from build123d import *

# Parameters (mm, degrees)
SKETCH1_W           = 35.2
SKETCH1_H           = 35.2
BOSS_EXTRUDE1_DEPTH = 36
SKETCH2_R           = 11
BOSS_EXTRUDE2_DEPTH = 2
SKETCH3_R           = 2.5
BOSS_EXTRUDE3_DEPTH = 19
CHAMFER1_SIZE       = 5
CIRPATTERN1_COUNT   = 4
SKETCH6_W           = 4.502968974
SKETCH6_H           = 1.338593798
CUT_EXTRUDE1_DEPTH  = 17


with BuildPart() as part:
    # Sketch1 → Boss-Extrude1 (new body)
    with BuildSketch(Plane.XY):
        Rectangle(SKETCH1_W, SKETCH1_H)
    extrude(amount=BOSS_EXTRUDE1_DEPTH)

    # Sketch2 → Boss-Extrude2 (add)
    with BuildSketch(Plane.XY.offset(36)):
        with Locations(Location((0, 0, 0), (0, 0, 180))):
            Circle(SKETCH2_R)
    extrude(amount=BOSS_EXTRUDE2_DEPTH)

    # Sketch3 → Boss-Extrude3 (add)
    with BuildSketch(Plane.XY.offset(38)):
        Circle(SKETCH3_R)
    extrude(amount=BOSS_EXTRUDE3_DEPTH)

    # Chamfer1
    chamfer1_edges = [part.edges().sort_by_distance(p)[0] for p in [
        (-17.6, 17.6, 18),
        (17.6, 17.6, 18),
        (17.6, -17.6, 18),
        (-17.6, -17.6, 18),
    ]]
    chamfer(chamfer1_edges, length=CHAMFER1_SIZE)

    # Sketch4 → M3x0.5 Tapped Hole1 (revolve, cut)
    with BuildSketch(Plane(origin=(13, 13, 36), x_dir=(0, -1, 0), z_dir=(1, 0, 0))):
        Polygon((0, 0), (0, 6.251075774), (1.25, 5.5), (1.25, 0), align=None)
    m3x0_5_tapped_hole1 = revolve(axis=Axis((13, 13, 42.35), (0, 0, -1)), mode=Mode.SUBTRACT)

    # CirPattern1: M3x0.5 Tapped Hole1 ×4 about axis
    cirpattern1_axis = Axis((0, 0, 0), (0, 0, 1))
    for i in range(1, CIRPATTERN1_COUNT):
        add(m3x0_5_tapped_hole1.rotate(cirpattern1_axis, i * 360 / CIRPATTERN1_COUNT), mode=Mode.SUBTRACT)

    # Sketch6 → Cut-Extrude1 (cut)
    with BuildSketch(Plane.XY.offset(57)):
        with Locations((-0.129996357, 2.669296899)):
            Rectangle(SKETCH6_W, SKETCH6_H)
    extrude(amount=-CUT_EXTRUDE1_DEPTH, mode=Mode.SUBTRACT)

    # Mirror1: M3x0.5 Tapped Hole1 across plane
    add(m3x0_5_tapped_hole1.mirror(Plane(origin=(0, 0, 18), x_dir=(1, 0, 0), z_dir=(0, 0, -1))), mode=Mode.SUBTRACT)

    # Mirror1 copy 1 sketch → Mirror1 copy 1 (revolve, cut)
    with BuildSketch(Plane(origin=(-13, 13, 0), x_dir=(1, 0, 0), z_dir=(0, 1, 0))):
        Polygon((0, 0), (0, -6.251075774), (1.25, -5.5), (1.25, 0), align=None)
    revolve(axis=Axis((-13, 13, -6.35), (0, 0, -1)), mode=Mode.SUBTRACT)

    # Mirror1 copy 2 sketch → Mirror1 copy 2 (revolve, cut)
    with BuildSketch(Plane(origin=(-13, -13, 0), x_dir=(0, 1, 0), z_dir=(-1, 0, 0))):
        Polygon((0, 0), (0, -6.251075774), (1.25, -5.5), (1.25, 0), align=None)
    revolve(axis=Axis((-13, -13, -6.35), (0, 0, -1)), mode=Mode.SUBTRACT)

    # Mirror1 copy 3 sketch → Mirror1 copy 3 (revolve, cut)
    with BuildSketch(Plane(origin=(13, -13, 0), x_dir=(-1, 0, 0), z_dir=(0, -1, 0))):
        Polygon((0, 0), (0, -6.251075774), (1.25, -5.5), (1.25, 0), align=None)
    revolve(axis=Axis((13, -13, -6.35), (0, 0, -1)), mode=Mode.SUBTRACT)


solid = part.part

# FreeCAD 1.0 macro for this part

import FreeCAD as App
import Part
import Sketcher
from FreeCAD import Vector
Q = App.Units.Quantity


def edges_at(feature, points):
    """Names of the edges that pass closest to the given points."""
    edges = feature.Shape.Edges
    near = lambda p: min(range(len(edges)), key=lambda i: edges[i].distToShape(Part.Vertex(*p))[0])
    return sorted({f"Edge{near(p) + 1}" for p in points})


def add_polygon(sketch, points):
    """Adds a closed chain of lines whose ends are joined by coincident constraints."""
    first, n = sketch.GeometryCount, len(points)
    for a, b in zip(points, points[1:] + points[:1]):
        sketch.addGeometry(Part.LineSegment(App.Vector(*a, 0), App.Vector(*b, 0)), False)
    for i in range(n):
        sketch.addConstraint(Sketcher.Constraint("Coincident", first + i, 2, first + (i + 1) % n, 1))

doc = App.newDocument("Part")
body = doc.addObject("PartDesign::Body", "Body")

# Sketch on XY plane
sketch1 = body.newObject("Sketcher::SketchObject", "Sketch")
sketch1.AttachmentSupport = (doc.getObject("XY_Plane"), [""])
sketch1.MapMode = "FlatFace"
add_polygon(sketch1, [(-17.6, 17.6), (-17.6, -17.6), (17.6, -17.6), (17.6, 17.6)])  # lines 0-3
sketch1.addConstraint([
    Sketcher.Constraint("Vertical", 0),
    Sketcher.Constraint("Horizontal", 1),
    Sketcher.Constraint("Vertical", 2),
    Sketcher.Constraint("Horizontal", 3),
    Sketcher.Constraint("Symmetric", 0, 2, 2, 2, -1, 1),
    Sketcher.Constraint("Equal", 3, 0),
    Sketcher.Constraint("DistanceX", 1, 1, 1, 2, 35.2),
])
pad1 = body.newObject("PartDesign::Pad", "Pad")
pad1.Profile = sketch1
pad1.Length = 36

# Sketch on XY plane
sketch2 = body.newObject("Sketcher::SketchObject", "Sketch001")
sketch2.AttachmentSupport = (doc.getObject("XY_Plane"), [""])
sketch2.MapMode = "FlatFace"
sketch2.AttachmentOffset = App.Placement(Vector(0, 0, 36), App.Rotation())
sketch2.addGeometry(Part.Circle(Vector(0, 0, 0), Vector(0, 0, 1), 11), False)
sketch2.addConstraint([
    Sketcher.Constraint("Coincident", 0, 3, -1, 1),
    Sketcher.Constraint("Diameter", 0, 22.0),
])
pad2 = body.newObject("PartDesign::Pad", "Pad001")
pad2.Profile = sketch2
pad2.Length = 2

# Sketch on XY plane
sketch3 = body.newObject("Sketcher::SketchObject", "Sketch002")
sketch3.AttachmentSupport = (doc.getObject("XY_Plane"), [""])
sketch3.MapMode = "FlatFace"
sketch3.AttachmentOffset = App.Placement(Vector(0, 0, 38), App.Rotation())
sketch3.addGeometry(Part.Circle(Vector(0, 0, 0), Vector(0, 0, 1), 2.5), False)
sketch3.addConstraint([
    Sketcher.Constraint("Coincident", 0, 3, -1, 1),
    Sketcher.Constraint("Diameter", 0, 5.0),
])
pad3 = body.newObject("PartDesign::Pad", "Pad002")
pad3.Profile = sketch3
pad3.Length = 19
doc.recompute()

chamfer = body.newObject("PartDesign::Chamfer", "Chamfer")
chamfer.Base = (pad3, edges_at(pad3, [
    (-17.6, 17.6, 18),
    (17.6, 17.6, 18),
    (17.6, -17.6, 18),
    (-17.6, -17.6, 18),
]))
chamfer.Size = 5

# Sketch on YZ plane
sketch4 = body.newObject("Sketcher::SketchObject", "Sketch003")
sketch4.AttachmentSupport = (doc.getObject("YZ_Plane"), [""])
sketch4.MapMode = "FlatFace"
sketch4.AttachmentOffset = App.Placement(Vector(0, 0, 13), App.Rotation())
add_polygon(sketch4, [(13, 29.748924), (13, 36), (11.75, 36), (11.75, 30.5)])  # lines 0-3
sketch4.addGeometry(Part.LineSegment(Vector(13, 36, 0), Vector(13, 29.748924, 0)), True)  # axis
sketch4.addConstraint([
    Sketcher.Constraint("Vertical", 0),
    Sketcher.Constraint("Horizontal", 1),
    Sketcher.Constraint("Vertical", 2),
    Sketcher.Constraint("Vertical", 4),
    Sketcher.Constraint("Coincident", 4, 1, 0, 2),
    Sketcher.Constraint("Equal", 0, 4),
    Sketcher.Constraint("Angle", 3, Q("-31 deg")),
    Sketcher.Constraint("DistanceY", 2, 2, 2, 1, 5.5),
    Sketcher.Constraint("DistanceX", -1, 1, 0, 2, 13.0),
    Sketcher.Constraint("DistanceY", -1, 1, 0, 2, 36.0),
    Sketcher.Constraint("DistanceX", 1, 2, 1, 1, 1.25),
])
groove = body.newObject("PartDesign::Groove", "Groove")
groove.Profile = sketch4
groove.ReferenceAxis = (sketch4, ["Axis0"])
groove.Angle = 360
doc.recompute()

polarpattern = body.newObject("PartDesign::PolarPattern", "PolarPattern")
polarpattern.Originals = [groove]
polarpattern.Axis = (doc.getObject("Z_Axis"), [""])
polarpattern.Angle = 360
polarpattern.Occurrences = 4
body.Tip = polarpattern

# Sketch on XY plane
sketch5 = body.newObject("Sketcher::SketchObject", "Sketch004")
sketch5.AttachmentSupport = (doc.getObject("XY_Plane"), [""])
sketch5.MapMode = "FlatFace"
sketch5.AttachmentOffset = App.Placement(Vector(0, 0, 57), App.Rotation())
add_polygon(sketch5, [(-2.381481, 3.338594), (-2.381481, 2), (2.121488, 2), (2.121488, 3.338594)])  # lines 0-3
sketch5.addConstraint([
    Sketcher.Constraint("Vertical", 0),
    Sketcher.Constraint("Horizontal", 1),
    Sketcher.Constraint("Vertical", 2),
    Sketcher.Constraint("Horizontal", 3),
    Sketcher.Constraint("DistanceY", -1, 1, 0, 2, 2.0),
    Sketcher.Constraint("DistanceX", 1, 1, 1, 2, 4.502969),
    Sketcher.Constraint("DistanceY", 0, 2, 0, 1, 1.338594),
    Sketcher.Constraint("DistanceX", 0, 2, -1, 1, 2.381481),
])
pocket1 = body.newObject("PartDesign::Pocket", "Pocket")
pocket1.Profile = sketch5
pocket1.Length = 17
doc.recompute()

datumplane = body.newObject("PartDesign::Plane", "DatumPlane")
datumplane.AttachmentSupport = (doc.getObject("XY_Plane"), [""])
datumplane.MapMode = "FlatFace"
datumplane.AttachmentOffset = App.Placement(Vector(0, 0, 18), App.Rotation())
mirrored = body.newObject("PartDesign::Mirrored", "Mirrored")
mirrored.Originals = [groove]
mirrored.MirrorPlane = (datumplane, [""])
body.Tip = mirrored

# Sketch on XZ plane
sketch6 = body.newObject("Sketcher::SketchObject", "Sketch005")
sketch6.AttachmentSupport = (doc.getObject("XZ_Plane"), [""])
sketch6.MapMode = "FlatFace"
sketch6.AttachmentOffset = App.Placement(Vector(0, 0, -13), App.Rotation())
add_polygon(sketch6, [(-13, 0), (-13, 6.251076), (-11.75, 5.5), (-11.75, 0)])  # lines 0-3
sketch6.addGeometry(Part.LineSegment(Vector(-13, 6.251076, 0), Vector(-13, 0, 0)), True)  # axis
sketch6.addConstraint([
    Sketcher.Constraint("Vertical", 0),
    Sketcher.Constraint("Vertical", 2),
    Sketcher.Constraint("Horizontal", 3),
    Sketcher.Constraint("Vertical", 4),
    Sketcher.Constraint("Coincident", 4, 1, 0, 2),
    Sketcher.Constraint("PointOnObject", 2, 2, -1),
    Sketcher.Constraint("PointOnObject", 4, 2, -1),
    Sketcher.Constraint("Angle", 1, Q("-31 deg")),
    Sketcher.Constraint("DistanceY", 2, 2, 2, 1, 5.5),
    Sketcher.Constraint("DistanceX", 0, 2, -1, 1, 13.0),
    Sketcher.Constraint("DistanceX", 3, 2, 3, 1, 1.25),
])
groove2 = body.newObject("PartDesign::Groove", "Groove001")
groove2.Profile = sketch6
groove2.ReferenceAxis = (sketch6, ["Axis0"])
groove2.Angle = 360

# Sketch on YZ plane
sketch7 = body.newObject("Sketcher::SketchObject", "Sketch006")
sketch7.AttachmentSupport = (doc.getObject("YZ_Plane"), [""])
sketch7.MapMode = "FlatFace"
sketch7.AttachmentOffset = App.Placement(Vector(0, 0, -13), App.Rotation())
add_polygon(sketch7, [(-13, 0), (-13, 6.251076), (-11.75, 5.5), (-11.75, 0)])  # lines 0-3
sketch7.addGeometry(Part.LineSegment(Vector(-13, 6.251076, 0), Vector(-13, 0, 0)), True)  # axis
sketch7.addConstraint([
    Sketcher.Constraint("Vertical", 0),
    Sketcher.Constraint("Vertical", 2),
    Sketcher.Constraint("Horizontal", 3),
    Sketcher.Constraint("Vertical", 4),
    Sketcher.Constraint("Coincident", 4, 1, 0, 2),
    Sketcher.Constraint("PointOnObject", 2, 2, -1),
    Sketcher.Constraint("PointOnObject", 4, 2, -1),
    Sketcher.Constraint("Angle", 1, Q("-31 deg")),
    Sketcher.Constraint("DistanceY", 2, 2, 2, 1, 5.5),
    Sketcher.Constraint("DistanceX", 0, 2, -1, 1, 13.0),
    Sketcher.Constraint("DistanceX", 3, 2, 3, 1, 1.25),
])
groove3 = body.newObject("PartDesign::Groove", "Groove002")
groove3.Profile = sketch7
groove3.ReferenceAxis = (sketch7, ["Axis0"])
groove3.Angle = 360

# Sketch on XZ plane
sketch8 = body.newObject("Sketcher::SketchObject", "Sketch007")
sketch8.AttachmentSupport = (doc.getObject("XZ_Plane"), [""])
sketch8.MapMode = "FlatFace"
sketch8.AttachmentOffset = App.Placement(Vector(0, 0, 13), App.Rotation())
add_polygon(sketch8, [(13, 0), (13, 6.251076), (11.75, 5.5), (11.75, 0)])  # lines 0-3
sketch8.addGeometry(Part.LineSegment(Vector(13, 6.251076, 0), Vector(13, 0, 0)), True)  # axis
sketch8.addConstraint([
    Sketcher.Constraint("Vertical", 0),
    Sketcher.Constraint("Vertical", 2),
    Sketcher.Constraint("Horizontal", 3),
    Sketcher.Constraint("Vertical", 4),
    Sketcher.Constraint("Coincident", 4, 1, 0, 2),
    Sketcher.Constraint("PointOnObject", 2, 2, -1),
    Sketcher.Constraint("PointOnObject", 4, 2, -1),
    Sketcher.Constraint("Angle", 1, Q("-149 deg")),
    Sketcher.Constraint("DistanceY", 2, 2, 2, 1, 5.5),
    Sketcher.Constraint("DistanceX", -1, 1, 0, 2, 13.0),
    Sketcher.Constraint("DistanceX", 3, 1, 3, 2, 1.25),
])
groove4 = body.newObject("PartDesign::Groove", "Groove003")
groove4.Profile = sketch8
groove4.ReferenceAxis = (sketch8, ["Axis0"])
groove4.Angle = 360

doc.recompute()
